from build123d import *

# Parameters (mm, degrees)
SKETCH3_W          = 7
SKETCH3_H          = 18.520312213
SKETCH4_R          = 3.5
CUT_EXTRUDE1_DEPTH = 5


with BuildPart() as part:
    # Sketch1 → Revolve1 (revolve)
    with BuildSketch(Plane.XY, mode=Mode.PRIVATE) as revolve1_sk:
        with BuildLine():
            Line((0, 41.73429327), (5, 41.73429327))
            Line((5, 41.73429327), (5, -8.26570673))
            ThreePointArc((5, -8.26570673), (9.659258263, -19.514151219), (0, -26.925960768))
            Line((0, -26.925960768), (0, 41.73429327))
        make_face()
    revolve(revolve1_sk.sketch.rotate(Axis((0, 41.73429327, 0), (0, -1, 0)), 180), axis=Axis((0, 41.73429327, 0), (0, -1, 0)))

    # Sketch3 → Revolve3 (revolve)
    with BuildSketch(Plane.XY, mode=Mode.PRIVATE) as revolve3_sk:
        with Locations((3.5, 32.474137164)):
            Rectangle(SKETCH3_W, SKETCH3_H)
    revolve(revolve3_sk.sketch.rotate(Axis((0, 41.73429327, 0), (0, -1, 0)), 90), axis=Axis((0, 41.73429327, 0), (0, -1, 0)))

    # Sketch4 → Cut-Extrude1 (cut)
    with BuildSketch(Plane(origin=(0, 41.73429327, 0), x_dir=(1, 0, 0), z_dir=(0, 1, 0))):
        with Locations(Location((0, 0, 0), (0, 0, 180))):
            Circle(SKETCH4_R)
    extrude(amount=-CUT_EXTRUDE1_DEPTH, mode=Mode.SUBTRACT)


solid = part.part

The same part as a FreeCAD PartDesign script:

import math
import FreeCAD as App
import Part
import Sketcher

doc = App.newDocument("Part")
body = doc.addObject("PartDesign::Body", "Body")

# Sketch on XY plane
sketch1 = body.newObject("Sketcher::SketchObject", "Sketch")
sketch1.AttachmentSupport = (doc.getObject("XY_Plane"), [""])
sketch1.MapMode = "FlatFace"
sketch1.addGeometry([
    Part.LineSegment(App.Vector(5, 41.734293, 0), App.Vector(0, 41.734293, 0)),
    Part.LineSegment(App.Vector(0, 41.734293, 0), App.Vector(0, -26.925961, 0)),
    Part.ArcOfCircle(Part.Circle(App.Vector(0, -16.925961, 0), App.Vector(0, 0, 1), 10), math.radians(-90), math.radians(60)),
    Part.LineSegment(App.Vector(5, -8.265707, 0), App.Vector(5, 41.734293, 0)),
], False)
sketch1.addConstraint([
    Sketcher.Constraint("Coincident", 0, 2, 1, 1),
    Sketcher.Constraint("Coincident", 1, 2, 2, 1),
    Sketcher.Constraint("Coincident", 2, 2, 3, 1),
    Sketcher.Constraint("Coincident", 3, 2, 0, 1),
    Sketcher.Constraint("Horizontal", 0),
    Sketcher.Constraint("Vertical", 1),
    Sketcher.Constraint("Vertical", 3),
    Sketcher.Constraint("PointOnObject", 2, 3, -2),
    Sketcher.Constraint("PointOnObject", 0, 2, -2),
    Sketcher.Constraint("Radius", 2, 10.0),
    Sketcher.Constraint("DistanceX", 0, 2, 0, 1, 5.0),
    Sketcher.Constraint("DistanceY", 3, 1, 3, 2, 50.0),
    Sketcher.Constraint("DistanceY", 2, 3, -1, 1, 16.925961),
])
revolution = body.newObject("PartDesign::Revolution", "Revolution")
revolution.Profile = sketch1
revolution.ReferenceAxis = (sketch1, ["V_Axis"])
revolution.Angle = 360

# Sketch on XY plane
sketch2 = body.newObject("Sketcher::SketchObject", "Sketch001")
sketch2.AttachmentSupport = (doc.getObject("XY_Plane"), [""])
sketch2.MapMode = "FlatFace"
sketch2.addGeometry([
    Part.LineSegment(App.Vector(0, 41.734293, 0), App.Vector(0, 23.213981, 0)),
    Part.LineSegment(App.Vector(0, 23.213981, 0), App.Vector(7, 23.213981, 0)),
    Part.LineSegment(App.Vector(7, 23.213981, 0), App.Vector(7, 41.734293, 0)),
    Part.LineSegment(App.Vector(7, 41.734293, 0), App.Vector(0, 41.734293, 0)),
], False)
sketch2.addConstraint([
    Sketcher.Constraint("Coincident", 0, 2, 1, 1),
    Sketcher.Constraint("Coincident", 1, 2, 2, 1),
    Sketcher.Constraint("Coincident", 2, 2, 3, 1),
    Sketcher.Constraint("Coincident", 3, 2, 0, 1),
    Sketcher.Constraint("Vertical", 0),
    Sketcher.Constraint("Horizontal", 1),
    Sketcher.Constraint("Vertical", 2),
    Sketcher.Constraint("Horizontal", 3),
    Sketcher.Constraint("PointOnObject", 0, 2, -2),
    Sketcher.Constraint("DistanceX", 1, 1, 1, 2, 7.0),
    Sketcher.Constraint("DistanceY", 0, 2, 0, 1, 18.520312),
    Sketcher.Constraint("DistanceY", -1, 1, 0, 2, 23.213981),
])
revolution2 = body.newObject("PartDesign::Revolution", "Revolution001")
revolution2.Profile = sketch2
revolution2.ReferenceAxis = (sketch2, ["V_Axis"])
revolution2.Angle = 360

# Sketch on XZ plane
sketch3 = body.newObject("Sketcher::SketchObject", "Sketch002")
sketch3.AttachmentSupport = (doc.getObject("XZ_Plane"), [""])
sketch3.MapMode = "FlatFace"
sketch3.AttachmentOffset = App.Placement(App.Vector(0, 0, -41.734293), App.Rotation())
sketch3.addGeometry(Part.Circle(App.Vector(0, 0, 0), App.Vector(0, 0, 1), 3.5), False)
sketch3.addConstraint([
    Sketcher.Constraint("Coincident", 0, 3, -1, 1),
    Sketcher.Constraint("Diameter", 0, 7.0),
])
pocket1 = body.newObject("PartDesign::Pocket", "Pocket")
pocket1.Profile = sketch3
pocket1.Length = 5
pocket1.Reversed = True

doc.recompute()
